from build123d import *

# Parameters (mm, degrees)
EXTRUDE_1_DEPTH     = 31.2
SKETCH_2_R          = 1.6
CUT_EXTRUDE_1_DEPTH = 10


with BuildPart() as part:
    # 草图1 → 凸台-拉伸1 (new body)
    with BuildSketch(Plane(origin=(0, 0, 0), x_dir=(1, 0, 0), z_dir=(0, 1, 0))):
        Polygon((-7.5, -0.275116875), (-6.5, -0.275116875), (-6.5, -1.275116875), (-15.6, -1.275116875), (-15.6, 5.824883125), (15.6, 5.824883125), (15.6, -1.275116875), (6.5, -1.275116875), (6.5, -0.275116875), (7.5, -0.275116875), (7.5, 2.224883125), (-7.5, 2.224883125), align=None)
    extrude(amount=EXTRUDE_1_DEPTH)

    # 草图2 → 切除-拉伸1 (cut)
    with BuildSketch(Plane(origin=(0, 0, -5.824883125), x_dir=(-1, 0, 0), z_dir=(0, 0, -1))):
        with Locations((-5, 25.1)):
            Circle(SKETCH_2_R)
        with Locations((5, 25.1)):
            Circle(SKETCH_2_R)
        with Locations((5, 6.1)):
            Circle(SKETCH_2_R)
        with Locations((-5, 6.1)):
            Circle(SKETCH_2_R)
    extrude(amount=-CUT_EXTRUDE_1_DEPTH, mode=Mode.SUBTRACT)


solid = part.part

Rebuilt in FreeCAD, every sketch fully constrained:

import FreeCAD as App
import Part
import Sketcher
Q = App.Units.Quantity


def add_polygon(sketch, points):
    """Adds a closed chain of lines whose ends are joined by coincident constraints."""
    first, n = sketch.GeometryCount, len(points)
    for a, b in zip(points, points[1:] + points[:1]):
        sketch.addGeometry(Part.LineSegment(App.Vector(*a, 0), App.Vector(*b, 0)), False)
    for i in range(n):
        sketch.addConstraint(Sketcher.Constraint("Coincident", first + i, 2, first + (i + 1) % n, 1))

doc = App.newDocument("Part")
body = doc.addObject("PartDesign::Body", "Body")

# Sketch on XZ plane
sketch1 = doc.addObject("Sketcher::SketchObject", "Sketch")
body.addObject(sketch1)
sketch1.AttachmentSupport = (doc.XZ_Plane, [""])
sketch1.MapMode = "FlatFace"
add_polygon(sketch1, [(-6.5, 0.3), (-7.5, 0.3), (-7.5, -2.2), (7.5, -2.2), (7.5, 0.3), (6.5, 0.3), (6.5, 1.3), (15.6, 1.3), (15.6, -5.8), (-15.6, -5.8), (-15.6, 1.3), (-6.5, 1.3)])  # lines 0-11
sketch1.addConstraint([
    Sketcher.Constraint("Horizontal", 0),
    Sketcher.Constraint("Vertical", 1),
    Sketcher.Constraint("Horizontal", 2),
    Sketcher.Constraint("Vertical", 3),
    Sketcher.Constraint("Horizontal", 4),
    Sketcher.Constraint("Vertical", 5),
    Sketcher.Constraint("Horizontal", 6),
    Sketcher.Constraint("Vertical", 7),
    Sketcher.Constraint("Horizontal", 8),
    Sketcher.Constraint("Vertical", 9),
    Sketcher.Constraint("Horizontal", 10),
    Sketcher.Constraint("Vertical", 11),
    Sketcher.Constraint("Symmetric", 0, 2, 3, 2, -2),
    Sketcher.Constraint("Symmetric", 6, 2, 9, 2, -2),
    Sketcher.Constraint("Equal", 0, 4),
    Sketcher.Constraint("Equal", 4, 5),
    Sketcher.Constraint("DistanceX", 0, 2, 0, 1, Q("1 mm")),
    Sketcher.Constraint("DistanceX", 2, 1, 2, 2, Q("15 mm")),
    Sketcher.Constraint("DistanceX", 6, 1, 6, 2, Q("9.1 mm")),
    Sketcher.Constraint("DistanceY", 1, 2, 1, 1, Q("2.5 mm")),
    Sketcher.Constraint("DistanceY", 7, 2, 7, 1, Q("7.1 mm")),
    Sketcher.Constraint("DistanceY", -1, 1, 0, 2, Q("0.275117 mm")),
])
pad1 = doc.addObject("PartDesign::Pad", "Pad")
body.addObject(pad1)
pad1.Profile = sketch1
pad1.Length = 31.2
pad1.Reversed = True

# Sketch on XY plane
sketch2 = doc.addObject("Sketcher::SketchObject", "Sketch001")
body.addObject(sketch2)
sketch2.AttachmentSupport = (doc.XY_Plane, [""])
sketch2.MapMode = "FlatFace"
sketch2.AttachmentOffset = App.Placement(App.Vector(0, 0, -5.824883), App.Rotation())
sketch2.addGeometry([
    Part.Circle(App.Vector(5, 25.1, 0), App.Vector(0, 0, 1), 1.6),
    Part.Circle(App.Vector(-5, 25.1, 0), App.Vector(0, 0, 1), 1.6),
    Part.Circle(App.Vector(-5, 6.1, 0), App.Vector(0, 0, 1), 1.6),
    Part.Circle(App.Vector(5, 6.1, 0), App.Vector(0, 0, 1), 1.6),
], False)
sketch2.addConstraint([
    Sketcher.Constraint("Equal", 0, 1),
    Sketcher.Constraint("Equal", 1, 2),
    Sketcher.Constraint("Equal", 2, 3),
    Sketcher.Constraint("Symmetric", 0, 3, 1, 3, -2),
    Sketcher.Constraint("Symmetric", 2, 3, 3, 3, -2),
    Sketcher.Constraint("Vertical", 1, 3, 2, 3),
    Sketcher.Constraint("Diameter", 0, Q("3.2 mm")),
    Sketcher.Constraint("DistanceX", -1, 1, 0, 3, Q("5 mm")),
    Sketcher.Constraint("DistanceY", 2, 3, 1, 3, Q("19 mm")),
    Sketcher.Constraint("DistanceY", -1, 1, 0, 3, Q("25.1 mm")),
])
pocket1 = doc.addObject("PartDesign::Pocket", "Pocket")
body.addObject(pocket1)
pocket1.Profile = sketch2
pocket1.Length = 10
pocket1.Reversed = True

doc.recompute()
